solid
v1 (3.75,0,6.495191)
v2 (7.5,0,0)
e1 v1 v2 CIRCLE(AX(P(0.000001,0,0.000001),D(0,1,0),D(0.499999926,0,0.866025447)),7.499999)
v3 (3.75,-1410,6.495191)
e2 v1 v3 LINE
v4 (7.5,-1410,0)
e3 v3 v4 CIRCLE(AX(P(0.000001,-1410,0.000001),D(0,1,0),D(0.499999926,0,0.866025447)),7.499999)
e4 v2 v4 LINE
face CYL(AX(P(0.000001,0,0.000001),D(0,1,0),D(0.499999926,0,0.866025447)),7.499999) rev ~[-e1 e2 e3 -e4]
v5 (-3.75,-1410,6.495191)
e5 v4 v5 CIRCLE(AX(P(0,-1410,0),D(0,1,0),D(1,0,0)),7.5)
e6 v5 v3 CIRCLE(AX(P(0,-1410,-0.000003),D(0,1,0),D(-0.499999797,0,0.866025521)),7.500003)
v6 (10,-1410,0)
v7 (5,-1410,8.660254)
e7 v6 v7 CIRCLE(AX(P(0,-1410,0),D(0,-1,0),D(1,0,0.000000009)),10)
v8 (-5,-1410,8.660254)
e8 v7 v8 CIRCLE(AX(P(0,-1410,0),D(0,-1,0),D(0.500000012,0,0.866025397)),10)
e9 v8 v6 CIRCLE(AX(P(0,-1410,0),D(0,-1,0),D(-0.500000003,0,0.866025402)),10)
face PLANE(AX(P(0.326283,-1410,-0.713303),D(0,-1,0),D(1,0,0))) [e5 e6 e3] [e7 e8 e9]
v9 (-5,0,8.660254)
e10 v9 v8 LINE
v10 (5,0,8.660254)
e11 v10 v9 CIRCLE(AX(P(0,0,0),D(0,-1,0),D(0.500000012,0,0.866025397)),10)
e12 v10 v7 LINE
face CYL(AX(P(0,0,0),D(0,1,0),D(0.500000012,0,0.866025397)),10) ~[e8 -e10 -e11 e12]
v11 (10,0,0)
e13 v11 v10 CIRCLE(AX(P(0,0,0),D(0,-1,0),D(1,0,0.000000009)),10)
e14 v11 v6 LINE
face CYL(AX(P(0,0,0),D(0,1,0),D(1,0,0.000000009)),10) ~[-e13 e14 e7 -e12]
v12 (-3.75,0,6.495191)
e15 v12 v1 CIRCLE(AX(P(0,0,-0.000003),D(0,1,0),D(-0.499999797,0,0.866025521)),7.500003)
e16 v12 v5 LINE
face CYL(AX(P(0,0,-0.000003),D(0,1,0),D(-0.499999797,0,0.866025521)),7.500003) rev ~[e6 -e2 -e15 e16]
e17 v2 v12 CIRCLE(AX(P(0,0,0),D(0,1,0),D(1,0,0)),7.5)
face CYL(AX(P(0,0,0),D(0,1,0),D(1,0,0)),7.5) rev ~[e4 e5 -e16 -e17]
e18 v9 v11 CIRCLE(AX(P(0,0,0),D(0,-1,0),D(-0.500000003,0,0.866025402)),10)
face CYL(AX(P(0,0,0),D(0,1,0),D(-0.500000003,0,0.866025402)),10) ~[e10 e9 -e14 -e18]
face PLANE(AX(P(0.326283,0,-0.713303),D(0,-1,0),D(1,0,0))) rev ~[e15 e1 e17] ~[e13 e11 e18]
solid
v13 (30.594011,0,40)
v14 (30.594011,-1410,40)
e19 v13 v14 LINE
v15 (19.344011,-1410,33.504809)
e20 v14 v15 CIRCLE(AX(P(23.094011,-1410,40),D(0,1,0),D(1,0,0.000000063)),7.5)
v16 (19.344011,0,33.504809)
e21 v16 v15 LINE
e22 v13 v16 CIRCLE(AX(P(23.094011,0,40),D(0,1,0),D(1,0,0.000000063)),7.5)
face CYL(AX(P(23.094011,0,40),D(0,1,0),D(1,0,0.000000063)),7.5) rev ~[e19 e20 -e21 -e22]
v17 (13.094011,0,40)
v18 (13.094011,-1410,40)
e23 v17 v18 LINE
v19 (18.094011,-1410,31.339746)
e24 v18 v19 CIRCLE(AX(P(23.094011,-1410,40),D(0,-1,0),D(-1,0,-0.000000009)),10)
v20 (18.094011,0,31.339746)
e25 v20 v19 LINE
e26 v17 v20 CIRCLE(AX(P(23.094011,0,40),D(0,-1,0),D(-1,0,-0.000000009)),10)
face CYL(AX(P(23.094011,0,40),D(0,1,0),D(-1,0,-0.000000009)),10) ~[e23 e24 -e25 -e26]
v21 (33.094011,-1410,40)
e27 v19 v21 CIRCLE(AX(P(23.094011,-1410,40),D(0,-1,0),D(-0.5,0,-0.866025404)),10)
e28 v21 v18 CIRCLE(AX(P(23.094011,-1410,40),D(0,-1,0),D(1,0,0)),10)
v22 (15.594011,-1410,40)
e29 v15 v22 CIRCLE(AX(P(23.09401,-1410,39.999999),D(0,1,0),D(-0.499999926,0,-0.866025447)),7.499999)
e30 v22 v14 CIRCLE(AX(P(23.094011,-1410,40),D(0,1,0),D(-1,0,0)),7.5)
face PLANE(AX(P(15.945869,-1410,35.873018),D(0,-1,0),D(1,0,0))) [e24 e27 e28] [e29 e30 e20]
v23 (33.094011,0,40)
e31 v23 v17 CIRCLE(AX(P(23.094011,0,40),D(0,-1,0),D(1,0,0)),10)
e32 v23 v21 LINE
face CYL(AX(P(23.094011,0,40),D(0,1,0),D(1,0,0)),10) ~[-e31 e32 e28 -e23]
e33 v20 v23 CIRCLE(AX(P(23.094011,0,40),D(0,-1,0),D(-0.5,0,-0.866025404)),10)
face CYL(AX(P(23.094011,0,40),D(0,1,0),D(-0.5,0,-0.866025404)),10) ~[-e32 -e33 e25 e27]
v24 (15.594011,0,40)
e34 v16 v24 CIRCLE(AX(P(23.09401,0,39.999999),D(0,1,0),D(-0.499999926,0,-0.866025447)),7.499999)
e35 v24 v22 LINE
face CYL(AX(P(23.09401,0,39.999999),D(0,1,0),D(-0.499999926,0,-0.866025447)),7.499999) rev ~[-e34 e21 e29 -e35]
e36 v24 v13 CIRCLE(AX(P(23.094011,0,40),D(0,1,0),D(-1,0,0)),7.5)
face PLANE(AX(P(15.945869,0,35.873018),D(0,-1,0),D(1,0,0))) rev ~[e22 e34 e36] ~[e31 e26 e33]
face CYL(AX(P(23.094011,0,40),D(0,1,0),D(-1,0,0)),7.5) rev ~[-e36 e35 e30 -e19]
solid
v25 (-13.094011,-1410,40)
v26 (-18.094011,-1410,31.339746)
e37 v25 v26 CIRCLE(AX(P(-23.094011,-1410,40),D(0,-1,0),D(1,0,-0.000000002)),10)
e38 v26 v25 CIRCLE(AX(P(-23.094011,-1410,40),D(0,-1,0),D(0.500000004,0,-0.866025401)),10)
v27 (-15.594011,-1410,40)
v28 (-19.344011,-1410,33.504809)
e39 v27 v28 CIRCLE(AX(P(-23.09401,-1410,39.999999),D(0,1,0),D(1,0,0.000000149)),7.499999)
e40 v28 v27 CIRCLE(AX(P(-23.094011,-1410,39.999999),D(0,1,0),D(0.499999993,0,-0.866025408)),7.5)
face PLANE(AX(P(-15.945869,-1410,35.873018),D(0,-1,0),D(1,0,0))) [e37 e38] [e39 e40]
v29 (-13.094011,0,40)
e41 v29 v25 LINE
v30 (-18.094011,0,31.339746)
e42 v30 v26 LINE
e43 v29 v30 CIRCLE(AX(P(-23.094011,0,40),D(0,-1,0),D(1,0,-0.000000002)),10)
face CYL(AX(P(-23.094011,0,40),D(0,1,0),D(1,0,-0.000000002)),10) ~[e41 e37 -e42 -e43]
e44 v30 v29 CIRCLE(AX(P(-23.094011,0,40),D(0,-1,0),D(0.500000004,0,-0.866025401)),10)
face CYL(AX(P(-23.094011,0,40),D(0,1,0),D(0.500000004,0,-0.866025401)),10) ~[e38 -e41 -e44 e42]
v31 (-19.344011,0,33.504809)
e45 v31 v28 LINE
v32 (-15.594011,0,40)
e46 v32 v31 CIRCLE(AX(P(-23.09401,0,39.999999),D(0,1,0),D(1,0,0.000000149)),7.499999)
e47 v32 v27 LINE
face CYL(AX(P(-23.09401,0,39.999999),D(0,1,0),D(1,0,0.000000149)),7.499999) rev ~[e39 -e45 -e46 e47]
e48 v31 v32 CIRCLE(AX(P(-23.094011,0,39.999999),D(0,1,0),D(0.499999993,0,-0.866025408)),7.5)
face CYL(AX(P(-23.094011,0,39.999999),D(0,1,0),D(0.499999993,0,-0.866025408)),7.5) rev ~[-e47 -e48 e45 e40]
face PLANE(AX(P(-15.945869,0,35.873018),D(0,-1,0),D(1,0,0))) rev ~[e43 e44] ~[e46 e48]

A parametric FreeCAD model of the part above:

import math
import FreeCAD as App
import Part
import Sketcher

doc = App.newDocument("Part")
params = doc.addObject("Spreadsheet::Sheet", "Params")
for row, (alias, value) in enumerate([
    ("sketch1_radius", "10 mm"),
    ("sketch1_radius2", "7.499999 mm"),
    ("pad1_length", "1410 mm"),
], start=1):
    params.set(f"A{row}", alias)
    params.set(f"B{row}", "=" + value)
    params.setAlias(f"B{row}", alias)

body = doc.addObject("PartDesign::Body", "Body")
body.AllowCompound = True

# Sketch on XZ plane
sketch1 = body.newObject("Sketcher::SketchObject", "Sketch")
sketch1.AttachmentSupport = (doc.getObject("XZ_Plane"), [""])
sketch1.MapMode = "FlatFace"
sketch1.addGeometry(Part.ArcOfCircle(Part.Circle(App.Vector(-23, 40, 0), App.Vector(0, 0, 1), 10), math.radians(-60), math.radians(0)), False)
sketch1.addGeometry(Part.ArcOfCircle(Part.Circle(App.Vector(-23, 40, 0), App.Vector(0, 0, 1), 10), math.radians(0), math.radians(300)), False)
sketch1.addGeometry(Part.ArcOfCircle(Part.Circle(App.Vector(-23, 40, 0), App.Vector(0, 0, 1), 7), math.radians(-60), math.radians(0)), False)
sketch1.addGeometry(Part.ArcOfCircle(Part.Circle(App.Vector(-23, 40, 0), App.Vector(0, 0, 1), 7), math.radians(0), math.radians(300)), False)
sketch1.addGeometry(Part.ArcOfCircle(Part.Circle(App.Vector(23, 40, 0), App.Vector(0, 0, 1), 10), math.radians(-180), math.radians(-120)), False)
sketch1.addGeometry(Part.ArcOfCircle(Part.Circle(App.Vector(23, 40, 0), App.Vector(0, 0, 1), 10), math.radians(-120), math.radians(0)), False)
sketch1.addGeometry(Part.ArcOfCircle(Part.Circle(App.Vector(23, 40, 0), App.Vector(0, 0, 1), 10), math.radians(0), math.radians(180)), False)
sketch1.addGeometry(Part.ArcOfCircle(Part.Circle(App.Vector(23, 40, 0), App.Vector(0, 0, 1), 7), math.radians(180), math.radians(240)), False)
sketch1.addGeometry(Part.ArcOfCircle(Part.Circle(App.Vector(23, 40, 0), App.Vector(0, 0, 1), 8), math.radians(0), math.radians(180)), False)
sketch1.addGeometry(Part.ArcOfCircle(Part.Circle(App.Vector(23, 40, 0), App.Vector(0, 0, 1), 8), math.radians(-120), math.radians(0)), False)
sketch1.addGeometry(Part.ArcOfCircle(Part.Circle(App.Vector(0, 0, 0), App.Vector(0, 0, 1), 10), math.radians(120), math.radians(360)), False)
sketch1.addGeometry(Part.ArcOfCircle(Part.Circle(App.Vector(0, 0, 0), App.Vector(0, 0, 1), 10), math.radians(0), math.radians(60)), False)
sketch1.addGeometry(Part.ArcOfCircle(Part.Circle(App.Vector(0, 0, 0), App.Vector(0, 0, 1), 10), math.radians(60), math.radians(120)), False)
sketch1.addGeometry(Part.ArcOfCircle(Part.Circle(App.Vector(0, 0, 0), App.Vector(0, 0, 1), 7), math.radians(0), math.radians(60)), False)
sketch1.addGeometry(Part.ArcOfCircle(Part.Circle(App.Vector(0, 0, 0), App.Vector(0, 0, 1), 8), math.radians(120), math.radians(360)), False)
sketch1.addGeometry(Part.ArcOfCircle(Part.Circle(App.Vector(0, 0, 0), App.Vector(0, 0, 1), 8), math.radians(60), math.radians(120)), False)
sketch1.addConstraint(Sketcher.Constraint("Tangent", 0, 1, 1, 2))
sketch1.addConstraint(Sketcher.Constraint("Coincident", 1, 1, 0, 2))
sketch1.addConstraint(Sketcher.Constraint("Tangent", 2, 1, 3, 2))
sketch1.addConstraint(Sketcher.Constraint("Coincident", 3, 1, 2, 2))
sketch1.addConstraint(Sketcher.Constraint("Tangent", 4, 2, 5, 1))
sketch1.addConstraint(Sketcher.Constraint("Tangent", 5, 2, 6, 1))
sketch1.addConstraint(Sketcher.Constraint("Tangent", 6, 2, 4, 1))
sketch1.addConstraint(Sketcher.Constraint("Tangent", 7, 1, 8, 2))
sketch1.addConstraint(Sketcher.Constraint("Tangent", 8, 1, 9, 2))
sketch1.addConstraint(Sketcher.Constraint("Tangent", 9, 1, 7, 2))
sketch1.addConstraint(Sketcher.Constraint("Tangent", 10, 2, 11, 1))
sketch1.addConstraint(Sketcher.Constraint("Tangent", 11, 2, 12, 1))
sketch1.addConstraint(Sketcher.Constraint("Tangent", 12, 2, 10, 1))
sketch1.addConstraint(Sketcher.Constraint("Tangent", 13, 1, 14, 2))
sketch1.addConstraint(Sketcher.Constraint("Tangent", 14, 1, 15, 2))
sketch1.addConstraint(Sketcher.Constraint("Tangent", 15, 1, 13, 2))
sketch1.addConstraint(Sketcher.Constraint("Coincident", 10, 3, -1, 1))
sketch1.addConstraint(Sketcher.Constraint("Coincident", 13, 3, -1, 1))
sketch1.addConstraint(Sketcher.Constraint("Coincident", 2, 3, 0, 3))
sketch1.addConstraint(Sketcher.Constraint("Coincident", 7, 3, 4, 3))
sketch1.addConstraint(Sketcher.Constraint("Equal", 1, 4))
sketch1.addConstraint(Sketcher.Constraint("Equal", 3, 7))
sketch1.addConstraint(Sketcher.Constraint("Equal", 6, 10))
sketch1.addConstraint(Sketcher.Constraint("Equal", 9, 13))
sketch1.addConstraint(Sketcher.Constraint("Symmetric", 0, 3, 4, 3, -2))
sketch1.addConstraint(Sketcher.Constraint("PointOnObject", 10, 2, -1))
sketch1.addConstraint(Sketcher.Constraint("PointOnObject", 13, 1, -1))
sketch1.addConstraint(Sketcher.Constraint("Horizontal", 9, 3, 1, 1))
sketch1.addConstraint(Sketcher.Constraint("Horizontal", 1, 1, 3, 1))
sketch1.addConstraint(Sketcher.Constraint("Horizontal", 0, 1, 4, 2))
sketch1.addConstraint(Sketcher.Constraint("Horizontal", 3, 1, 5, 2))
sketch1.addConstraint(Sketcher.Constraint("Horizontal", 5, 2, 6, 2))
sketch1.addConstraint(Sketcher.Constraint("Horizontal", 6, 2, 7, 1))
sketch1.addConstraint(Sketcher.Constraint("Horizontal", 7, 1, 8, 1))
sketch1.addConstraint(Sketcher.Constraint("Horizontal", 2, 1, 9, 1))
sketch1.addConstraint(Sketcher.Constraint("Horizontal", 11, 2, 12, 2))
sketch1.addConstraint(Sketcher.Constraint("Horizontal", 14, 1, 15, 1))
sketch1.addConstraint(Sketcher.Constraint("Radius", 0, 10.0))
sketch1.addConstraint(Sketcher.Constraint("Radius", 2, 7.499999))
sketch1.addConstraint(Sketcher.Constraint("DistanceY", -1, 1, 0, 3, 40.0))
sketch1.addConstraint(Sketcher.Constraint("DistanceX", -1, 1, 11, 2, 5.0))
sketch1.addConstraint(Sketcher.Constraint("DistanceX", 2, 3, 0, 1, 4.999999))
sketch1.addConstraint(Sketcher.Constraint("DistanceX", 14, 1, 15, 1, 7.5))
sketch1.addConstraint(Sketcher.Constraint("DistanceX", 2, 1, 0, 1, 1.25))
sketch1.addConstraint(Sketcher.Constraint("DistanceX", 0, 3, -1, 1, 23.094011))
sketch1.setExpression("Constraints[37]", "Params.sketch1_radius")
sketch1.setExpression("Constraints[38]", "Params.sketch1_radius2")
pad1 = body.newObject("PartDesign::Pad", "Pad")
pad1.Profile = sketch1
pad1.setExpression("Length", "Params.pad1_length")

doc.recompute()
